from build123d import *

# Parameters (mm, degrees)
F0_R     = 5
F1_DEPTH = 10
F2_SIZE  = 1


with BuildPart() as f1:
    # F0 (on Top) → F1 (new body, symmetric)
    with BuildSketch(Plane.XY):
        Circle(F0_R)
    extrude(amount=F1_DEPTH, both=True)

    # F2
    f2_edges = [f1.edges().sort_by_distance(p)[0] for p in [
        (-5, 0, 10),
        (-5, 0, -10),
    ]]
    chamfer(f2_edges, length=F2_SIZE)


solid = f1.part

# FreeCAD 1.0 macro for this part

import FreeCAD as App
import Part
import Sketcher

V = App.Vector
Q = App.Units.Quantity


def edges_at(feature, points):
    """Names of the edges that pass closest to the given points."""
    edges = feature.Shape.Edges
    near = lambda p: min(range(len(edges)), key=lambda i: edges[i].distToShape(Part.Vertex(*p))[0])
    return sorted({f"Edge{near(p) + 1}" for p in points})

doc = App.newDocument("Part")
params = doc.addObject("Spreadsheet::Sheet", "Params")
for row, (alias, value) in enumerate([
    ("sketch1_diameter", "10 mm"),
    ("pad1_length", "20 mm"),
    ("chamfer_size", "1 mm"),
], start=1):
    params.set(f"A{row}", alias)
    params.set(f"B{row}", "=" + value)
    params.setAlias(f"B{row}", alias)

body = doc.addObject("PartDesign::Body", "Body")

sketch1 = body.newObject("Sketcher::SketchObject", "Sketch")
sketch1.AttachmentSupport = (doc.getObject("XY_Plane"), [""])
sketch1.MapMode = "FlatFace"
sketch1.addGeometry(Part.Circle(V(0, 0, 0), V(0, 0, 1), 5), False)
sketch1.addConstraint([
    Sketcher.Constraint("Coincident", 0, 3, -1, 1),
    Sketcher.Constraint("Diameter", 0, Q("10 mm")),
])
sketch1.setExpression("Constraints[1]", "Params.sketch1_diameter")
pad1 = body.newObject("PartDesign::Pad", "Pad")
pad1.Profile = sketch1
pad1.setExpression("Length", "Params.pad1_length")
pad1.Midplane = True
doc.recompute()

chamfer = body.newObject("PartDesign::Chamfer", "Chamfer")
chamfer.Base = (pad1, edges_at(pad1, [(-5, 0, 10), (-5, 0, -10)]))
chamfer.setExpression("Size", "Params.chamfer_size")

doc.recompute()
